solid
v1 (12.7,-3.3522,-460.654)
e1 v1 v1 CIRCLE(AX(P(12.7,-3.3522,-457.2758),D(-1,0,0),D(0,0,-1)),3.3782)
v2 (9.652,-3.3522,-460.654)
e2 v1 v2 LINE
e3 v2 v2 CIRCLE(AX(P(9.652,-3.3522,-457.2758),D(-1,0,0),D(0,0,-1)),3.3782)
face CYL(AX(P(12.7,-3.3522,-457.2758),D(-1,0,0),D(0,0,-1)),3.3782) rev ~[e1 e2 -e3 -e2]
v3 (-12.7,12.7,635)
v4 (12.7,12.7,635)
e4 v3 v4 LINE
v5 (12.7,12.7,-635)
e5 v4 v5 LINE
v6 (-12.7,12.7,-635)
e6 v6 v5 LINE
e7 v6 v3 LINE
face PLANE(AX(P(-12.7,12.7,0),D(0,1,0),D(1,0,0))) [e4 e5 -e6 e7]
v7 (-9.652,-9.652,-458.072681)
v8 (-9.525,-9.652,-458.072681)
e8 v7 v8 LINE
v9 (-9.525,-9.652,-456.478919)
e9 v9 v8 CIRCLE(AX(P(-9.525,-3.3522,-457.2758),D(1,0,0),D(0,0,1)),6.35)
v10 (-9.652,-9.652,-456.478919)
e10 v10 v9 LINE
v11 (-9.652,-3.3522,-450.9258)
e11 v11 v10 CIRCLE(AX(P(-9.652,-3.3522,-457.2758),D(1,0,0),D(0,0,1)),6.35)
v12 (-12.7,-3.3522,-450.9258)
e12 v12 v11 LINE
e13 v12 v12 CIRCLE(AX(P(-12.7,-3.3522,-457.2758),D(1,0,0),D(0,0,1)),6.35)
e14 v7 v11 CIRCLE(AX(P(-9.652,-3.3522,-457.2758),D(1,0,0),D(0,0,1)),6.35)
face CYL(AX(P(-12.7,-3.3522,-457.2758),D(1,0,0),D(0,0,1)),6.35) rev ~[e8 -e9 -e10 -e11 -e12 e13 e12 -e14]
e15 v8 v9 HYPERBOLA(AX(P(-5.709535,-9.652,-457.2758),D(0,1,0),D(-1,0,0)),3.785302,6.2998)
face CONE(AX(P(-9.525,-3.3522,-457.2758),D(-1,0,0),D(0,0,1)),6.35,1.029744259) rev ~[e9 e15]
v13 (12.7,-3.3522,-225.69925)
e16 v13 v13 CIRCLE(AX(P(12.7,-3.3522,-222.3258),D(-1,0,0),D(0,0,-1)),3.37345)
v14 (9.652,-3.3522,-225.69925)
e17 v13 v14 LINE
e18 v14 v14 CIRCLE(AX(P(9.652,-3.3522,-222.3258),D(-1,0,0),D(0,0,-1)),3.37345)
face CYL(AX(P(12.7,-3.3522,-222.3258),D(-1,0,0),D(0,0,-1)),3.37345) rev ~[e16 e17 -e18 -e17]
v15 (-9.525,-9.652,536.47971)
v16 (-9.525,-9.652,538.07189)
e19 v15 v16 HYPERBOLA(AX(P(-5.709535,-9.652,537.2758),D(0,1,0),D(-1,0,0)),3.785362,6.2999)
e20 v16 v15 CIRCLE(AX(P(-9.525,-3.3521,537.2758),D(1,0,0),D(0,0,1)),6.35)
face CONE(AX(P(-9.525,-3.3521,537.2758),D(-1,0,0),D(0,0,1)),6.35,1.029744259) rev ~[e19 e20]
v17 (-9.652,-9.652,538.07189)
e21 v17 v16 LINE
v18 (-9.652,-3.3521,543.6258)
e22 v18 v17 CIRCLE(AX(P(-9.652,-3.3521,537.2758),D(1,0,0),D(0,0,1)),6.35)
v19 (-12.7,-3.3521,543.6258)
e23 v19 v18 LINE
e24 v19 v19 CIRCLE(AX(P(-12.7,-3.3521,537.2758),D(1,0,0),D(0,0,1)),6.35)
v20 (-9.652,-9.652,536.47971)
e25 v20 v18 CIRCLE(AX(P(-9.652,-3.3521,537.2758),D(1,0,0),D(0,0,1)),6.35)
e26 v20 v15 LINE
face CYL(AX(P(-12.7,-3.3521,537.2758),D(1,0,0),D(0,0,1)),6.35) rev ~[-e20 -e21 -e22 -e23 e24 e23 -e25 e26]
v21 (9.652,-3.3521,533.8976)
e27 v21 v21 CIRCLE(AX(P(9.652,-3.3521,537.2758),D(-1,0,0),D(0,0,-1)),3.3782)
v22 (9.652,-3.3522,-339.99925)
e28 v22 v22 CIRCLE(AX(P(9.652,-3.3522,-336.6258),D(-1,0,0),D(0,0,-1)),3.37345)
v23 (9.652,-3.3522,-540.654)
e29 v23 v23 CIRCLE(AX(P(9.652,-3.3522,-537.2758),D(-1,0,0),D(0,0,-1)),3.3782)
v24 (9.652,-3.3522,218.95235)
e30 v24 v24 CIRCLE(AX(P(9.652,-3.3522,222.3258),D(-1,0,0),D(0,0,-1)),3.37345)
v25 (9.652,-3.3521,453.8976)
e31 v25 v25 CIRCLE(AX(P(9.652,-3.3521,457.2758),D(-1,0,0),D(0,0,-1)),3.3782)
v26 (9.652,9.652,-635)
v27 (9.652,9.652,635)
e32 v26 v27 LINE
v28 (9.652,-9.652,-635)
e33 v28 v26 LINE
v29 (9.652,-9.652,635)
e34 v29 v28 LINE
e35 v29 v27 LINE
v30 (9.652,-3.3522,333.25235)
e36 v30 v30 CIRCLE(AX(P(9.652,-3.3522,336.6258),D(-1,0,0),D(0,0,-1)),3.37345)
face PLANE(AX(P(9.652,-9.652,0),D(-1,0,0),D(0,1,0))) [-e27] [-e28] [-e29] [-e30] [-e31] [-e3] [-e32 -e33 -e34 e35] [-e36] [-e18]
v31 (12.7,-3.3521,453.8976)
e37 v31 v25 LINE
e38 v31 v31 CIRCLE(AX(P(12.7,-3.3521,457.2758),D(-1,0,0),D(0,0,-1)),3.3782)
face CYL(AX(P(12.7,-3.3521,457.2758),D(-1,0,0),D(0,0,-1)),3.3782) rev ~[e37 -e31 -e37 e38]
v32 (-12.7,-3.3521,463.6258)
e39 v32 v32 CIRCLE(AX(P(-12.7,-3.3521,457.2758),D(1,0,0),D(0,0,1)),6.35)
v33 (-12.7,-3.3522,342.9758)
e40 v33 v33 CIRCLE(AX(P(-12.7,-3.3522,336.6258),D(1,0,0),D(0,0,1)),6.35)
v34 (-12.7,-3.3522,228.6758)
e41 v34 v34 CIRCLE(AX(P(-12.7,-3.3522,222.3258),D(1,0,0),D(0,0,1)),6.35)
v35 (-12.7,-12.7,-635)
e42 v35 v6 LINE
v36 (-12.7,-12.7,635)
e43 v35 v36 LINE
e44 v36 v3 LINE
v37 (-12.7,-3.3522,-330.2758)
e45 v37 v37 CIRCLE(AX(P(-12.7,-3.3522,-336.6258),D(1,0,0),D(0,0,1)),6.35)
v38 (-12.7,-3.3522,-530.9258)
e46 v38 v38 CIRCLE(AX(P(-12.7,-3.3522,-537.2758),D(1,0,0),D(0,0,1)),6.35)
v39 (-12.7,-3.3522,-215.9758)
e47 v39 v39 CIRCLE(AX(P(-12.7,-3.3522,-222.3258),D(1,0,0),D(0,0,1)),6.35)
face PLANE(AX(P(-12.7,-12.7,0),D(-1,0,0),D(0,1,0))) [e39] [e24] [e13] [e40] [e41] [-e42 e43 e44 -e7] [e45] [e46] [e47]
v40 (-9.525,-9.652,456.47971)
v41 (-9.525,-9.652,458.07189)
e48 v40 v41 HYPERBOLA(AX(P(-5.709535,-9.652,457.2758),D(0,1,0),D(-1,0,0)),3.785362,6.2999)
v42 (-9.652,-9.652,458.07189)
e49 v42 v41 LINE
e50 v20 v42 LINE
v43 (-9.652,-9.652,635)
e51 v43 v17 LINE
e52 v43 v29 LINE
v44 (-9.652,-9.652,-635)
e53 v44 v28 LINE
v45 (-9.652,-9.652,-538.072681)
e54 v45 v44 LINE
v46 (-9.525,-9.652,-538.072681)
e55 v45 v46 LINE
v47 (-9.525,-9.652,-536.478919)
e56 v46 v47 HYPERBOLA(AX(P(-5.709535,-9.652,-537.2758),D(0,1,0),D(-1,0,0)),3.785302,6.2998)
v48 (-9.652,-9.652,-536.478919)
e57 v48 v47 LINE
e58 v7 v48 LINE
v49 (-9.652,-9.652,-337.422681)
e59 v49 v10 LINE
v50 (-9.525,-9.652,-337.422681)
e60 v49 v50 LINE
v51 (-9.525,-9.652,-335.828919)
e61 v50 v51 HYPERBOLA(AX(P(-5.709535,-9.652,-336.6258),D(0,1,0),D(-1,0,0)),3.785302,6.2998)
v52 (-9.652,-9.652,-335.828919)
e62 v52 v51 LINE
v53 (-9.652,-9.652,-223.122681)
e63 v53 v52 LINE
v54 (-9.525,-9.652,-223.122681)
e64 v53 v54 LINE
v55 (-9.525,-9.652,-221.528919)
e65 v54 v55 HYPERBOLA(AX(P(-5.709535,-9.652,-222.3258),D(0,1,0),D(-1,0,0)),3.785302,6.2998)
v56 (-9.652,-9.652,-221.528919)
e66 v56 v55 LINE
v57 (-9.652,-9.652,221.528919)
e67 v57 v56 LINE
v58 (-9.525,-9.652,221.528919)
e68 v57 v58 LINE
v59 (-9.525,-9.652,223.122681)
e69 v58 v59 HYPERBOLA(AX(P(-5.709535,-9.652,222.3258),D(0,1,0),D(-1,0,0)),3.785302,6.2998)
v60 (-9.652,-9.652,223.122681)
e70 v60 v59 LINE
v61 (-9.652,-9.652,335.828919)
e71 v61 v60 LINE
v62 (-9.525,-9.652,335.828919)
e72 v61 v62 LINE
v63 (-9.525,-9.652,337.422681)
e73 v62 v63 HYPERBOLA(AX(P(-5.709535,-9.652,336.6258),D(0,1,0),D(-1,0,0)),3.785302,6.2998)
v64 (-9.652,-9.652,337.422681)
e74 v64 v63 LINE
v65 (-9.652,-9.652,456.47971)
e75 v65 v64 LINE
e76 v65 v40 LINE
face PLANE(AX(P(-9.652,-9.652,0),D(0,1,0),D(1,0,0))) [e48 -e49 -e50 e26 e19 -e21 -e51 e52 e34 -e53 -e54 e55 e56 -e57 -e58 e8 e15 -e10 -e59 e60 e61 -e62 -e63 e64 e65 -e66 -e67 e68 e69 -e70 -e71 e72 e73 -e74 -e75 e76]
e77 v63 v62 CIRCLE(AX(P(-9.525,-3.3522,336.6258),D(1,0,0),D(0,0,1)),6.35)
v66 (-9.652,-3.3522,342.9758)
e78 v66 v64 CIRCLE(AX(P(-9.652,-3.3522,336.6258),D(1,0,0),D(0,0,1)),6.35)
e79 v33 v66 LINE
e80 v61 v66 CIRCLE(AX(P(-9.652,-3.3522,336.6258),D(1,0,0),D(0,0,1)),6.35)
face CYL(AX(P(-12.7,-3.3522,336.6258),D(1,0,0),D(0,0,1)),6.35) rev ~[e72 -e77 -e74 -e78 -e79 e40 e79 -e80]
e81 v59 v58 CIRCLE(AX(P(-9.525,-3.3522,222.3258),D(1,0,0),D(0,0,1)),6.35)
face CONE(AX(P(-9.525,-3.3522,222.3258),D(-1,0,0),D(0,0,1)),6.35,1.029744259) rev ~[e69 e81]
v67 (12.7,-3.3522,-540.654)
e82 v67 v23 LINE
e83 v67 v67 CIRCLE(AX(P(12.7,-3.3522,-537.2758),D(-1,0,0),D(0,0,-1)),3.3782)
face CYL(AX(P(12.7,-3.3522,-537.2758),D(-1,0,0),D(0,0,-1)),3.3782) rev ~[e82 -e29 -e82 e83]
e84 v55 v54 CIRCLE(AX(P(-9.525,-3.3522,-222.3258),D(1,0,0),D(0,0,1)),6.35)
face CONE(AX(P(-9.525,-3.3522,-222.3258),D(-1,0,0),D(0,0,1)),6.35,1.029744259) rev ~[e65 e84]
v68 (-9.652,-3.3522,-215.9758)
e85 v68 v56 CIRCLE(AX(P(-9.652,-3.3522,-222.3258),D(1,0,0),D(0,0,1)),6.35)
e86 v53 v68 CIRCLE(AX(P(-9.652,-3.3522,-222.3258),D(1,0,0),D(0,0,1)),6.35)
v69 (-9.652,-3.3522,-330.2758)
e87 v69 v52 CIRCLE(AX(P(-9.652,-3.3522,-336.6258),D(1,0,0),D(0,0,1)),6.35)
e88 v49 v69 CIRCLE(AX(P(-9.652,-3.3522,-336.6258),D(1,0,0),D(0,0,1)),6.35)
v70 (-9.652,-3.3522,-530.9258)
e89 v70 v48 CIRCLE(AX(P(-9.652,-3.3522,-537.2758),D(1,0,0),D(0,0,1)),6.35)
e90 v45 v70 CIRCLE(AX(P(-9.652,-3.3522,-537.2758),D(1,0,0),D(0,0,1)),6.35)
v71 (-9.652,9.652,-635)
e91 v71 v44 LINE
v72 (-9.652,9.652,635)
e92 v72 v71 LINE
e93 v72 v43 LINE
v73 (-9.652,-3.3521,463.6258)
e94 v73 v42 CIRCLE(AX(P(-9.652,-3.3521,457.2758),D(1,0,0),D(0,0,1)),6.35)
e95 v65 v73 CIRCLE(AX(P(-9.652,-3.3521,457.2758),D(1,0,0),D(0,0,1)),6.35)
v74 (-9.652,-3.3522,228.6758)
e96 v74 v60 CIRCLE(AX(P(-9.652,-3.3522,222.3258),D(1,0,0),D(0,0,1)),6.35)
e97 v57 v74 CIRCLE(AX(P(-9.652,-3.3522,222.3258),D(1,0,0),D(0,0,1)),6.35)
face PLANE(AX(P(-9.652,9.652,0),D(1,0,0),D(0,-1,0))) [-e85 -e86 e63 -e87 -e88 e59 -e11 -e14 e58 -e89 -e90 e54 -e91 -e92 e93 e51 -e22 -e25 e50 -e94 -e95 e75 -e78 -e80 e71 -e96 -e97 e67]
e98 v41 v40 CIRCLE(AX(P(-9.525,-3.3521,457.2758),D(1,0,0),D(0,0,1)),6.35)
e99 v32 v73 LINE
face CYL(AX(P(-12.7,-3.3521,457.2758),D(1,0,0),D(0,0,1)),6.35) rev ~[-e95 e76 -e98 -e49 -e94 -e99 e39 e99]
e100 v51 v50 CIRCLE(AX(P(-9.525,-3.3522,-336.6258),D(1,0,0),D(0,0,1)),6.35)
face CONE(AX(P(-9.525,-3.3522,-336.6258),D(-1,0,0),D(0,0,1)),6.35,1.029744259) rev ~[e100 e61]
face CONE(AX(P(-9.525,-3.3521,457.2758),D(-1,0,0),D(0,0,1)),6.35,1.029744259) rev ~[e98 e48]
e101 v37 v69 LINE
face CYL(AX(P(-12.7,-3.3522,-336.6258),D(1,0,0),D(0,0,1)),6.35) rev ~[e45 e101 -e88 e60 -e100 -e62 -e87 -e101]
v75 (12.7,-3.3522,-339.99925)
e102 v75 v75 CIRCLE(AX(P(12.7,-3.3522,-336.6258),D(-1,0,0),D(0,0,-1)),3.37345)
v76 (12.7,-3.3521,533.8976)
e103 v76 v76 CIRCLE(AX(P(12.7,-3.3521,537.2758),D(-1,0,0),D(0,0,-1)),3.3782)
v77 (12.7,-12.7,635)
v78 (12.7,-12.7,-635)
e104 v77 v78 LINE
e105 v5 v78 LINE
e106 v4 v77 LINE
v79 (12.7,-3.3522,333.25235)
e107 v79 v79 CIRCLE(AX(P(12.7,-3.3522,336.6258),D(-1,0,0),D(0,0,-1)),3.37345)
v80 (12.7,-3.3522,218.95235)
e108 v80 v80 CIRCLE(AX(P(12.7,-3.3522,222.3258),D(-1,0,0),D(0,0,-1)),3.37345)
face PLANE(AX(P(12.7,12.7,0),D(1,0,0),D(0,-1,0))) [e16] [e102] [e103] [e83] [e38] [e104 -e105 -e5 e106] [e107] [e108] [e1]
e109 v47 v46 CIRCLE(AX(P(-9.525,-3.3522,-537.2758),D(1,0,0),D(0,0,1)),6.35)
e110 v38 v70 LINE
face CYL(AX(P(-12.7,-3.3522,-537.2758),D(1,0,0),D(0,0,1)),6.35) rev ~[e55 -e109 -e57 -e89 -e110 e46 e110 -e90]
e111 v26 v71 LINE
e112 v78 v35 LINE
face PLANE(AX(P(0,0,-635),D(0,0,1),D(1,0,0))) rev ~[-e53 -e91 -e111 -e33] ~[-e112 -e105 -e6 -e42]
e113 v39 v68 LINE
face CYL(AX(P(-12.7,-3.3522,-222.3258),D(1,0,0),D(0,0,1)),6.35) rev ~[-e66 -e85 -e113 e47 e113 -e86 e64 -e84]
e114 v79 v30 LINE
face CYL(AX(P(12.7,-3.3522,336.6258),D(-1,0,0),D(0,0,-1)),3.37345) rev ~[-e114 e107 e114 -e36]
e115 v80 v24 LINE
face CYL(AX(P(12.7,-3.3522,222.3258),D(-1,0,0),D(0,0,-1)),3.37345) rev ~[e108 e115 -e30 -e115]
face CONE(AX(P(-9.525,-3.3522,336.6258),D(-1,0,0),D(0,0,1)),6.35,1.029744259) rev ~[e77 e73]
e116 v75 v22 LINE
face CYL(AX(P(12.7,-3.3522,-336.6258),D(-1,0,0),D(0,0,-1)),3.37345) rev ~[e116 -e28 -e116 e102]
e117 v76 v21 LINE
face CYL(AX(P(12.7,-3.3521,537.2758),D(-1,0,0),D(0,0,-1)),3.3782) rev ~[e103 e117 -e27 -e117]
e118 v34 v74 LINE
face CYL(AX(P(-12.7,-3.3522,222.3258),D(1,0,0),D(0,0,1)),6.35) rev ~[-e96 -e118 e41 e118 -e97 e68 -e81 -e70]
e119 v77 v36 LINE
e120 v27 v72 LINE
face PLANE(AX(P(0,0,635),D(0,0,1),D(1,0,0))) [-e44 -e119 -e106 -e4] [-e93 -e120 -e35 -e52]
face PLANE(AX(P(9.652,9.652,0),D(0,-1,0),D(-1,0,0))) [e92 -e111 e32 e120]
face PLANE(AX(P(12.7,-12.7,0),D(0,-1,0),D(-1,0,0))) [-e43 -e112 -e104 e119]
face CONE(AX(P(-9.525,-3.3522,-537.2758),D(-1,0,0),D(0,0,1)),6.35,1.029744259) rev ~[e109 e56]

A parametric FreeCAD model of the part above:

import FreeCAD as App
import Part
import Sketcher
Q = App.Units.Quantity

doc = App.newDocument("Part")
body = doc.addObject("PartDesign::Body", "Body")

sketch1 = body.newObject("Sketcher::SketchObject", "Sketch")
sketch1.AttachmentSupport = (doc.getObject("XY_Plane"), [""])
sketch1.MapMode = "FlatFace"
sketch1.addGeometry(Part.LineSegment(App.Vector(12.7, 12.7, 0), App.Vector(-12.7, 12.7, 0)), False)
sketch1.addGeometry(Part.LineSegment(App.Vector(-12.7, 12.7, 0), App.Vector(-12.7, -12.7, 0)), False)
sketch1.addGeometry(Part.LineSegment(App.Vector(-12.7, -12.7, 0), App.Vector(12.7, -12.7, 0)), False)
sketch1.addGeometry(Part.LineSegment(App.Vector(12.7, -12.7, 0), App.Vector(12.7, 12.7, 0)), False)
sketch1.addGeometry(Part.LineSegment(App.Vector(-9.652, 9.652, 0), App.Vector(9.652, 9.652, 0)), False)
sketch1.addGeometry(Part.LineSegment(App.Vector(9.652, 9.652, 0), App.Vector(9.652, -9.652, 0)), False)
sketch1.addGeometry(Part.LineSegment(App.Vector(9.652, -9.652, 0), App.Vector(-9.652, -9.652, 0)), False)
sketch1.addGeometry(Part.LineSegment(App.Vector(-9.652, -9.652, 0), App.Vector(-9.652, 9.652, 0)), False)
sketch1.addConstraint(Sketcher.Constraint("Coincident", 0, 2, 1, 1))
sketch1.addConstraint(Sketcher.Constraint("Coincident", 1, 2, 2, 1))
sketch1.addConstraint(Sketcher.Constraint("Coincident", 2, 2, 3, 1))
sketch1.addConstraint(Sketcher.Constraint("Coincident", 3, 2, 0, 1))
sketch1.addConstraint(Sketcher.Constraint("Coincident", 4, 2, 5, 1))
sketch1.addConstraint(Sketcher.Constraint("Coincident", 5, 2, 6, 1))
sketch1.addConstraint(Sketcher.Constraint("Coincident", 6, 2, 7, 1))
sketch1.addConstraint(Sketcher.Constraint("Coincident", 7, 2, 4, 1))
sketch1.addConstraint(Sketcher.Constraint("Horizontal", 0))
sketch1.addConstraint(Sketcher.Constraint("Vertical", 1))
sketch1.addConstraint(Sketcher.Constraint("Horizontal", 2))
sketch1.addConstraint(Sketcher.Constraint("Vertical", 3))
sketch1.addConstraint(Sketcher.Constraint("Horizontal", 4))
sketch1.addConstraint(Sketcher.Constraint("Vertical", 5))
sketch1.addConstraint(Sketcher.Constraint("Horizontal", 6))
sketch1.addConstraint(Sketcher.Constraint("Vertical", 7))
sketch1.addConstraint(Sketcher.Constraint("Symmetric", 0, 2, 2, 2, -1, 1))
sketch1.addConstraint(Sketcher.Constraint("Symmetric", 4, 2, 6, 2, -1, 1))
sketch1.addConstraint(Sketcher.Constraint("Equal", 2, 1))
sketch1.addConstraint(Sketcher.Constraint("Equal", 6, 5))
sketch1.addConstraint(Sketcher.Constraint("DistanceX", 0, 2, 0, 1, Q("1 in")))
sketch1.addConstraint(Sketcher.Constraint("DistanceX", 4, 2, 3, 2, Q("0.12 in")))
pad1 = body.newObject("PartDesign::Pad", "Pad")
pad1.Profile = sketch1
pad1.Length = Q("50 in")
pad1.Midplane = True

sketch2 = body.newObject("Sketcher::SketchObject", "Sketch001")
sketch2.AttachmentSupport = (doc.getObject("YZ_Plane"), [""])
sketch2.MapMode = "FlatFace"
sketch2.AttachmentOffset = App.Placement(App.Vector(0, 0, 0.5 * 25.4), App.Rotation())
sketch2.addGeometry(Part.Circle(App.Vector(-3.3521, 537.2758, 0), App.Vector(0, 0, 1), 3.3782), False)
sketch2.addGeometry(Part.Circle(App.Vector(-3.3521, 457.2758, 0), App.Vector(0, 0, 1), 3.3782), False)
sketch2.addGeometry(Part.Circle(App.Vector(-3.3522, -457.2758, 0), App.Vector(0, 0, 1), 3.3782), False)
sketch2.addGeometry(Part.Circle(App.Vector(-3.3522, -537.2758, 0), App.Vector(0, 0, 1), 3.3782), False)
sketch2.addConstraint(Sketcher.Constraint("Equal", 0, 1))
sketch2.addConstraint(Sketcher.Constraint("Equal", 1, 2))
sketch2.addConstraint(Sketcher.Constraint("Equal", 2, 3))
sketch2.addConstraint(Sketcher.Constraint("Symmetric", 1, 3, 2, 3, -1))
sketch2.addConstraint(Sketcher.Constraint("Symmetric", 0, 3, 3, 3, -1))
sketch2.addConstraint(Sketcher.Constraint("Vertical", 0, 3, 1, 3))
sketch2.addConstraint(Sketcher.Constraint("Diameter", 0, Q("0.266 in")))
sketch2.addConstraint(Sketcher.Constraint("DistanceY", -1, 1, 0, 3, Q("21.1526 in")))
sketch2.addConstraint(Sketcher.Constraint("DistanceY", 1, 3, 0, 3, Q("3.1496 in")))
sketch2.addConstraint(Sketcher.Constraint("DistanceX", 0, 3, -1, 1, 3.352))
doc.recompute()
hole = body.newObject("PartDesign::Hole", "Hole")
hole.Profile = sketch2
hole.ThreadType = "None"
hole.Diameter = Q("0.266 in")
hole.DepthType = "Dimension"
hole.Depth = Q("0.5 in")
hole.DrillPoint = "Angled"
hole.DrillPointAngle = 118

sketch3 = body.newObject("Sketcher::SketchObject", "Sketch002")
sketch3.AttachmentSupport = (doc.getObject("YZ_Plane"), [""])
sketch3.MapMode = "FlatFace"
sketch3.AttachmentOffset = App.Placement(App.Vector(0, 0, -0.5 * 25.4), App.Rotation())
sketch3.addGeometry(Part.Circle(App.Vector(-3.3521, 537.2758, 0), App.Vector(0, 0, 1), 6.35), False)
sketch3.addGeometry(Part.Circle(App.Vector(-3.3521, 457.2758, 0), App.Vector(0, 0, 1), 6.35), False)
sketch3.addGeometry(Part.Circle(App.Vector(-3.3522, -457.2758, 0), App.Vector(0, 0, 1), 6.35), False)
sketch3.addGeometry(Part.Circle(App.Vector(-3.3522, -537.2758, 0), App.Vector(0, 0, 1), 6.35), False)
sketch3.addConstraint(Sketcher.Constraint("Equal", 0, 1))
sketch3.addConstraint(Sketcher.Constraint("Equal", 1, 2))
sketch3.addConstraint(Sketcher.Constraint("Equal", 2, 3))
sketch3.addConstraint(Sketcher.Constraint("Symmetric", 1, 3, 2, 3, -1))
sketch3.addConstraint(Sketcher.Constraint("Symmetric", 0, 3, 3, 3, -1))
sketch3.addConstraint(Sketcher.Constraint("Vertical", 0, 3, 1, 3))
sketch3.addConstraint(Sketcher.Constraint("Diameter", 0, Q("0.5 in")))
sketch3.addConstraint(Sketcher.Constraint("DistanceY", -1, 1, 0, 3, Q("21.1526 in")))
sketch3.addConstraint(Sketcher.Constraint("DistanceY", 1, 3, 0, 3, Q("3.1496 in")))
sketch3.addConstraint(Sketcher.Constraint("DistanceX", 0, 3, -1, 1, 3.352))
doc.recompute()
hole2 = body.newObject("PartDesign::Hole", "Hole001")
hole2.Profile = sketch3
hole2.ThreadType = "None"
hole2.Diameter = Q("0.5 in")
hole2.DepthType = "Dimension"
hole2.Depth = Q("0.125 in")
hole2.DrillPoint = "Angled"
hole2.DrillPointAngle = 118
hole2.Reversed = True

sketch4 = body.newObject("Sketcher::SketchObject", "Sketch003")
sketch4.AttachmentSupport = (doc.getObject("YZ_Plane"), [""])
sketch4.MapMode = "FlatFace"
sketch4.AttachmentOffset = App.Placement(App.Vector(0, 0, 0.5 * 25.4), App.Rotation())
sketch4.addGeometry(Part.Circle(App.Vector(-3.3522, 336.6258, 0), App.Vector(0, 0, 1), 3.37345), False)
sketch4.addGeometry(Part.Circle(App.Vector(-3.3522, 222.3258, 0), App.Vector(0, 0, 1), 3.37345), False)
sketch4.addGeometry(Part.Circle(App.Vector(-3.3522, -222.3258, 0), App.Vector(0, 0, 1), 3.37345), False)
sketch4.addGeometry(Part.Circle(App.Vector(-3.3522, -336.6258, 0), App.Vector(0, 0, 1), 3.37345), False)
sketch4.addConstraint(Sketcher.Constraint("Equal", 0, 1))
sketch4.addConstraint(Sketcher.Constraint("Equal", 1, 2))
sketch4.addConstraint(Sketcher.Constraint("Equal", 2, 3))
sketch4.addConstraint(Sketcher.Constraint("Symmetric", 1, 3, 2, 3, -1))
sketch4.addConstraint(Sketcher.Constraint("Symmetric", 0, 3, 3, 3, -1))
sketch4.addConstraint(Sketcher.Constraint("Vertical", 0, 3, 1, 3))
sketch4.addConstraint(Sketcher.Constraint("Diameter", 0, Q("0.2656299 in")))
sketch4.addConstraint(Sketcher.Constraint("DistanceY", 1, 3, 0, 3, Q("4.5 in")))
sketch4.addConstraint(Sketcher.Constraint("DistanceX", 0, 3, -1, 1, 3.3522))
sketch4.addConstraint(Sketcher.Constraint("DistanceY", -1, 1, 0, 3, 336.6258))
doc.recompute()
hole3 = body.newObject("PartDesign::Hole", "Hole002")
hole3.Profile = sketch4
hole3.ThreadType = "None"
hole3.Diameter = Q("0.265626 in")
hole3.DepthType = "Dimension"
hole3.Depth = Q("0.125 in")
hole3.DrillPoint = "Angled"
hole3.DrillPointAngle = 118

sketch5 = body.newObject("Sketcher::SketchObject", "Sketch004")
sketch5.AttachmentSupport = (doc.getObject("YZ_Plane"), [""])
sketch5.MapMode = "FlatFace"
sketch5.AttachmentOffset = App.Placement(App.Vector(0, 0, -0.5 * 25.4), App.Rotation())
sketch5.addGeometry(Part.Circle(App.Vector(-3.3522, 336.6258, 0), App.Vector(0, 0, 1), 6.35), False)
sketch5.addGeometry(Part.Circle(App.Vector(-3.3522, 222.3258, 0), App.Vector(0, 0, 1), 6.35), False)
sketch5.addGeometry(Part.Circle(App.Vector(-3.3522, -222.3258, 0), App.Vector(0, 0, 1), 6.35), False)
sketch5.addGeometry(Part.Circle(App.Vector(-3.3522, -336.6258, 0), App.Vector(0, 0, 1), 6.35), False)
sketch5.addConstraint(Sketcher.Constraint("Equal", 0, 1))
sketch5.addConstraint(Sketcher.Constraint("Equal", 1, 2))
sketch5.addConstraint(Sketcher.Constraint("Equal", 2, 3))
sketch5.addConstraint(Sketcher.Constraint("Symmetric", 1, 3, 2, 3, -1))
sketch5.addConstraint(Sketcher.Constraint("Symmetric", 0, 3, 3, 3, -1))
sketch5.addConstraint(Sketcher.Constraint("Vertical", 0, 3, 1, 3))
sketch5.addConstraint(Sketcher.Constraint("Diameter", 0, Q("0.5 in")))
sketch5.addConstraint(Sketcher.Constraint("DistanceY", 1, 3, 0, 3, Q("4.5 in")))
sketch5.addConstraint(Sketcher.Constraint("DistanceX", 0, 3, -1, 1, 3.3522))
sketch5.addConstraint(Sketcher.Constraint("DistanceY", -1, 1, 0, 3, 336.6258))
doc.recompute()
hole4 = body.newObject("PartDesign::Hole", "Hole003")
hole4.Profile = sketch5
hole4.ThreadType = "None"
hole4.Diameter = Q("0.5 in")
hole4.DepthType = "Dimension"
hole4.Depth = Q("0.125 in")
hole4.DrillPoint = "Angled"
hole4.DrillPointAngle = 118
hole4.Reversed = True

doc.recompute()
